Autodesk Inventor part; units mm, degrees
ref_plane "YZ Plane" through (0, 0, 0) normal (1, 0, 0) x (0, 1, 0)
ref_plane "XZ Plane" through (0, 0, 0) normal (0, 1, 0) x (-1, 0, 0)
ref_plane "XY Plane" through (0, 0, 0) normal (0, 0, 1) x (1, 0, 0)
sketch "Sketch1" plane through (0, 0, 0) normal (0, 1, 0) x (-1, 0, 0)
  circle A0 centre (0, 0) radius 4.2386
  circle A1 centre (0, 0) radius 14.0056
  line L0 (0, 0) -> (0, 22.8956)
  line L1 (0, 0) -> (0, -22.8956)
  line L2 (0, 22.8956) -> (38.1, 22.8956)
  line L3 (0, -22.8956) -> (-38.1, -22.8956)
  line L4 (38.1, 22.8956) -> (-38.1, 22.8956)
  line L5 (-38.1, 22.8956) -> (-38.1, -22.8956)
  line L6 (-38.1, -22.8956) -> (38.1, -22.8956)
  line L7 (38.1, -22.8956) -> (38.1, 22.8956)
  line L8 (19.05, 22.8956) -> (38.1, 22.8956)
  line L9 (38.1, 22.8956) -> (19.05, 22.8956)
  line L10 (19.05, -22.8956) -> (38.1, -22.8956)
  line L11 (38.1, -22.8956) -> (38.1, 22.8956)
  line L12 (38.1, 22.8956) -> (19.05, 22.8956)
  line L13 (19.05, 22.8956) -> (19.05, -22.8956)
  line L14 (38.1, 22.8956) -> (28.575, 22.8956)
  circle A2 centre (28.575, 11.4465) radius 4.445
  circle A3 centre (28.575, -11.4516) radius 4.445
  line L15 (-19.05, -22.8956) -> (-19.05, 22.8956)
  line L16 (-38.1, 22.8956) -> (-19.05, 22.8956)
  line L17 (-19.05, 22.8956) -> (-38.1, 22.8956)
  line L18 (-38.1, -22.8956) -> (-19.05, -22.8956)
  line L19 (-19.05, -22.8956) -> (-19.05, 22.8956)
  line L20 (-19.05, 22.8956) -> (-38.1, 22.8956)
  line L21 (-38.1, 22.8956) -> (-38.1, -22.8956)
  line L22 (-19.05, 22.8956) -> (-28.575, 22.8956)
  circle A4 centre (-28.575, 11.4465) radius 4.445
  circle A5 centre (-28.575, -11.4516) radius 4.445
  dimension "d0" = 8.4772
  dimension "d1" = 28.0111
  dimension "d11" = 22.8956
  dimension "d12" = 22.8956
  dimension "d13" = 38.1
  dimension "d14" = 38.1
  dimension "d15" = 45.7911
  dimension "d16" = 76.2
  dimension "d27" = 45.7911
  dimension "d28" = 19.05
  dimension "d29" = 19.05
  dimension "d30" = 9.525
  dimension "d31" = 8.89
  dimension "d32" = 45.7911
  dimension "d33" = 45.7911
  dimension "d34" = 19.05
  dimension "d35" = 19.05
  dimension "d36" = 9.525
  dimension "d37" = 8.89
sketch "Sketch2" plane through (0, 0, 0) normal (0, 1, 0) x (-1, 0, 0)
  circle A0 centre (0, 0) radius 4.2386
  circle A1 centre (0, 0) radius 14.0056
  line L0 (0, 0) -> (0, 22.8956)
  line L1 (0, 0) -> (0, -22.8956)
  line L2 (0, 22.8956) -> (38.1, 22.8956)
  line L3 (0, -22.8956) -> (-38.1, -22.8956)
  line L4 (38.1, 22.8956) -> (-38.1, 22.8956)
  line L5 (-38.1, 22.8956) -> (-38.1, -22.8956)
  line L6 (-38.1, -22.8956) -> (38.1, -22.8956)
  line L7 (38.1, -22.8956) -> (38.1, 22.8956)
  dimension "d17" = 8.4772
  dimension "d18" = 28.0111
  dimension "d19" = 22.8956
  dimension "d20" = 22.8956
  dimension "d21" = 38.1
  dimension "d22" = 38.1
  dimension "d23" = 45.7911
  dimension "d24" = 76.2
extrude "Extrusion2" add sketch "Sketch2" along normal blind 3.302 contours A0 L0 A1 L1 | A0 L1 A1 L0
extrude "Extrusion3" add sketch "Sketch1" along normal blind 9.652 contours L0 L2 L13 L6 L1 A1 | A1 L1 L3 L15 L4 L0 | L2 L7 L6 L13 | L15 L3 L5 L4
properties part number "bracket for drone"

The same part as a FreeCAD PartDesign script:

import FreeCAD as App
import Part
import Sketcher
Q = App.Units.Quantity

doc = App.newDocument("Part")
body = doc.addObject("PartDesign::Body", "Body")

sketch1 = doc.addObject("Sketcher::SketchObject", "Sketch")
body.addObject(sketch1)
sketch1.AttachmentSupport = (doc.XZ_Plane, [""])
sketch1.MapMode = "FlatFace"
sketch1.addGeometry([
    Part.Circle(App.Vector(0, 0, 0), App.Vector(0, 0, 1), 14.0056),
    Part.Circle(App.Vector(0, 0, 0), App.Vector(0, 0, 1), 4.2386),
], False)
sketch1.addConstraint([
    Sketcher.Constraint("Coincident", 0, 3, -1, 1),
    Sketcher.Constraint("Coincident", 1, 3, -1, 1),
    Sketcher.Constraint("Diameter", 0, Q("1.1028 in")),
    Sketcher.Constraint("Diameter", 1, Q("8.4772 mm")),
])
pad1 = doc.addObject("PartDesign::Pad", "Pad")
body.addObject(pad1)
pad1.Profile = sketch1
pad1.Length = Q("0.13 in")
pad1.Reversed = True

sketch2 = doc.addObject("Sketcher::SketchObject", "Sketch001")
body.addObject(sketch2)
sketch2.AttachmentSupport = (doc.XZ_Plane, [""])
sketch2.MapMode = "FlatFace"
sketch2.addGeometry([
    Part.LineSegment(App.Vector(38.1, 22.8956, 0), App.Vector(38.1, -22.8956, 0)),
    Part.LineSegment(App.Vector(38.1, -22.8956, 0), App.Vector(-38.1, -22.8956, 0)),
    Part.LineSegment(App.Vector(-38.1, -22.8956, 0), App.Vector(-38.1, 22.8956, 0)),
    Part.LineSegment(App.Vector(-38.1, 22.8956, 0), App.Vector(38.1, 22.8956, 0)),
    Part.Circle(App.Vector(0, 0, 0), App.Vector(0, 0, 1), 14.0056),
    Part.Circle(App.Vector(-28.575, 11.4465, 0), App.Vector(0, 0, 1), 4.445),
    Part.Circle(App.Vector(-28.575, -11.4516, 0), App.Vector(0, 0, 1), 4.445),
    Part.Circle(App.Vector(28.575, 11.4465, 0), App.Vector(0, 0, 1), 4.445),
    Part.Circle(App.Vector(28.575, -11.4516, 0), App.Vector(0, 0, 1), 4.445),
], False)
sketch2.addConstraint([
    Sketcher.Constraint("Coincident", 0, 2, 1, 1),
    Sketcher.Constraint("Coincident", 1, 2, 2, 1),
    Sketcher.Constraint("Coincident", 2, 2, 3, 1),
    Sketcher.Constraint("Coincident", 3, 2, 0, 1),
    Sketcher.Constraint("Vertical", 0),
    Sketcher.Constraint("Horizontal", 1),
    Sketcher.Constraint("Vertical", 2),
    Sketcher.Constraint("Horizontal", 3),
    Sketcher.Constraint("Coincident", 4, 3, -1, 1),
    Sketcher.Constraint("Equal", 5, 6),
    Sketcher.Constraint("Equal", 6, 7),
    Sketcher.Constraint("Equal", 7, 8),
    Sketcher.Constraint("Symmetric", 0, 2, 2, 2, -1, 1),
    Sketcher.Constraint("Symmetric", 5, 3, 7, 3, -2),
    Sketcher.Constraint("Symmetric", 6, 3, 8, 3, -2),
    Sketcher.Constraint("Vertical", 5, 3, 6, 3),
    Sketcher.Constraint("Diameter", 5, Q("0.35 in")),
    Sketcher.Constraint("DistanceX", 1, 2, 1, 1, Q("3 in")),
    Sketcher.Constraint("Diameter", 4, Q("1.1028 in")),
    Sketcher.Constraint("DistanceY", 0, 2, 0, 1, Q("1.8028 in")),
    Sketcher.Constraint("DistanceX", 8, 3, 0, 2, Q("0.375 in")),
    Sketcher.Constraint("DistanceY", 6, 3, 5, 3, Q("0.9015 in")),
    Sketcher.Constraint("DistanceY", -1, 1, 5, 3, Q("11.4465 mm")),
])
pad2 = doc.addObject("PartDesign::Pad", "Pad001")
body.addObject(pad2)
pad2.Profile = sketch2
pad2.Length = Q("0.38 in")
pad2.Reversed = True

doc.recompute()
